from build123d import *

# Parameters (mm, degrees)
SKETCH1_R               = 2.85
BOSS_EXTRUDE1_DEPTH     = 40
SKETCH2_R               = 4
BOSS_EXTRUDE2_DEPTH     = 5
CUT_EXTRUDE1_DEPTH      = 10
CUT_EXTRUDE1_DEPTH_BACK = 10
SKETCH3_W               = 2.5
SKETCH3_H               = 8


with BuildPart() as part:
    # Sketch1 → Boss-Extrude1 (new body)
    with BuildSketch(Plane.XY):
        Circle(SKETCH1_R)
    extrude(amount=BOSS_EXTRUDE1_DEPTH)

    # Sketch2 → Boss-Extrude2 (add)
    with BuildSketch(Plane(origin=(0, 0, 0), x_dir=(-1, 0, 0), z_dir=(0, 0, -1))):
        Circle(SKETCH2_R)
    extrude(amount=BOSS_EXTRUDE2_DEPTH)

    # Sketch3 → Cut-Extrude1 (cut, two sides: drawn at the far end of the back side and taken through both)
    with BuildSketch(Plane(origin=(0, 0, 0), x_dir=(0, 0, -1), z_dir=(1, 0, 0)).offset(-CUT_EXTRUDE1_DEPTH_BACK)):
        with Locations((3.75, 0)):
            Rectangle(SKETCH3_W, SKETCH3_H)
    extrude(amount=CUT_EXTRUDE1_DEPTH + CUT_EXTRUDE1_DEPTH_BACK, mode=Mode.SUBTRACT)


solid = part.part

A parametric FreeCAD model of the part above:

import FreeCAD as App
import Part
import Sketcher

V = App.Vector
Q = App.Units.Quantity

doc = App.newDocument("Part")
body = doc.addObject("PartDesign::Body", "Body")

# Sketch on XY plane
sketch1 = doc.addObject("Sketcher::SketchObject", "Sketch")
body.addObject(sketch1)
sketch1.AttachmentSupport = (doc.XY_Plane, [""])
sketch1.MapMode = "FlatFace"
sketch1.addGeometry(Part.Circle(V(0, 0, 0), V(0, 0, 1), 2.9), False)
sketch1.addConstraint([
    Sketcher.Constraint("Coincident", 0, 3, -1, 1),
    Sketcher.Constraint("Diameter", 0, Q("5.7 mm")),
])
pad1 = doc.addObject("PartDesign::Pad", "Pad")
body.addObject(pad1)
pad1.Profile = sketch1
pad1.Length = 40

# Sketch on XY plane
sketch2 = doc.addObject("Sketcher::SketchObject", "Sketch001")
body.addObject(sketch2)
sketch2.AttachmentSupport = (doc.XY_Plane, [""])
sketch2.MapMode = "FlatFace"
sketch2.addGeometry(Part.Circle(V(0, 0, 0), V(0, 0, 1), 4), False)
sketch2.addConstraint([
    Sketcher.Constraint("Coincident", 0, 3, -1, 1),
    Sketcher.Constraint("Diameter", 0, Q("8 mm")),
])
pad2 = doc.addObject("PartDesign::Pad", "Pad001")
body.addObject(pad2)
pad2.Profile = sketch2
pad2.Length = 5
pad2.Reversed = True

# Sketch on YZ plane
sketch3 = doc.addObject("Sketcher::SketchObject", "Sketch002")
body.addObject(sketch3)
sketch3.AttachmentSupport = (doc.YZ_Plane, [""])
sketch3.MapMode = "FlatFace"
sketch3.addGeometry([
    Part.LineSegment(V(4, -2.5, 0), V(-4, -2.5, 0)),
    Part.LineSegment(V(-4, -2.5, 0), V(-4, -5, 0)),
    Part.LineSegment(V(-4, -5, 0), V(4, -5, 0)),
    Part.LineSegment(V(4, -5, 0), V(4, -2.5, 0)),
], False)
sketch3.addConstraint([
    Sketcher.Constraint("Coincident", 0, 2, 1, 1),
    Sketcher.Constraint("Coincident", 1, 2, 2, 1),
    Sketcher.Constraint("Coincident", 2, 2, 3, 1),
    Sketcher.Constraint("Coincident", 3, 2, 0, 1),
    Sketcher.Constraint("Horizontal", 0),
    Sketcher.Constraint("Vertical", 1),
    Sketcher.Constraint("Horizontal", 2),
    Sketcher.Constraint("Vertical", 3),
    Sketcher.Constraint("DistanceX", 0, 2, 0, 1, Q("8 mm")),
    Sketcher.Constraint("DistanceY", 1, 2, 1, 1, Q("2.5 mm")),
    Sketcher.Constraint("DistanceX", 0, 2, -1, 1, Q("4 mm")),
    Sketcher.Constraint("DistanceY", 1, 2, -1, 1, Q("5 mm")),
])
pocket1 = doc.addObject("PartDesign::Pocket", "Pocket")
body.addObject(pocket1)
pocket1.Profile = sketch3
pocket1.Type = "ThroughAll"
pocket1.Midplane = True

doc.recompute()
